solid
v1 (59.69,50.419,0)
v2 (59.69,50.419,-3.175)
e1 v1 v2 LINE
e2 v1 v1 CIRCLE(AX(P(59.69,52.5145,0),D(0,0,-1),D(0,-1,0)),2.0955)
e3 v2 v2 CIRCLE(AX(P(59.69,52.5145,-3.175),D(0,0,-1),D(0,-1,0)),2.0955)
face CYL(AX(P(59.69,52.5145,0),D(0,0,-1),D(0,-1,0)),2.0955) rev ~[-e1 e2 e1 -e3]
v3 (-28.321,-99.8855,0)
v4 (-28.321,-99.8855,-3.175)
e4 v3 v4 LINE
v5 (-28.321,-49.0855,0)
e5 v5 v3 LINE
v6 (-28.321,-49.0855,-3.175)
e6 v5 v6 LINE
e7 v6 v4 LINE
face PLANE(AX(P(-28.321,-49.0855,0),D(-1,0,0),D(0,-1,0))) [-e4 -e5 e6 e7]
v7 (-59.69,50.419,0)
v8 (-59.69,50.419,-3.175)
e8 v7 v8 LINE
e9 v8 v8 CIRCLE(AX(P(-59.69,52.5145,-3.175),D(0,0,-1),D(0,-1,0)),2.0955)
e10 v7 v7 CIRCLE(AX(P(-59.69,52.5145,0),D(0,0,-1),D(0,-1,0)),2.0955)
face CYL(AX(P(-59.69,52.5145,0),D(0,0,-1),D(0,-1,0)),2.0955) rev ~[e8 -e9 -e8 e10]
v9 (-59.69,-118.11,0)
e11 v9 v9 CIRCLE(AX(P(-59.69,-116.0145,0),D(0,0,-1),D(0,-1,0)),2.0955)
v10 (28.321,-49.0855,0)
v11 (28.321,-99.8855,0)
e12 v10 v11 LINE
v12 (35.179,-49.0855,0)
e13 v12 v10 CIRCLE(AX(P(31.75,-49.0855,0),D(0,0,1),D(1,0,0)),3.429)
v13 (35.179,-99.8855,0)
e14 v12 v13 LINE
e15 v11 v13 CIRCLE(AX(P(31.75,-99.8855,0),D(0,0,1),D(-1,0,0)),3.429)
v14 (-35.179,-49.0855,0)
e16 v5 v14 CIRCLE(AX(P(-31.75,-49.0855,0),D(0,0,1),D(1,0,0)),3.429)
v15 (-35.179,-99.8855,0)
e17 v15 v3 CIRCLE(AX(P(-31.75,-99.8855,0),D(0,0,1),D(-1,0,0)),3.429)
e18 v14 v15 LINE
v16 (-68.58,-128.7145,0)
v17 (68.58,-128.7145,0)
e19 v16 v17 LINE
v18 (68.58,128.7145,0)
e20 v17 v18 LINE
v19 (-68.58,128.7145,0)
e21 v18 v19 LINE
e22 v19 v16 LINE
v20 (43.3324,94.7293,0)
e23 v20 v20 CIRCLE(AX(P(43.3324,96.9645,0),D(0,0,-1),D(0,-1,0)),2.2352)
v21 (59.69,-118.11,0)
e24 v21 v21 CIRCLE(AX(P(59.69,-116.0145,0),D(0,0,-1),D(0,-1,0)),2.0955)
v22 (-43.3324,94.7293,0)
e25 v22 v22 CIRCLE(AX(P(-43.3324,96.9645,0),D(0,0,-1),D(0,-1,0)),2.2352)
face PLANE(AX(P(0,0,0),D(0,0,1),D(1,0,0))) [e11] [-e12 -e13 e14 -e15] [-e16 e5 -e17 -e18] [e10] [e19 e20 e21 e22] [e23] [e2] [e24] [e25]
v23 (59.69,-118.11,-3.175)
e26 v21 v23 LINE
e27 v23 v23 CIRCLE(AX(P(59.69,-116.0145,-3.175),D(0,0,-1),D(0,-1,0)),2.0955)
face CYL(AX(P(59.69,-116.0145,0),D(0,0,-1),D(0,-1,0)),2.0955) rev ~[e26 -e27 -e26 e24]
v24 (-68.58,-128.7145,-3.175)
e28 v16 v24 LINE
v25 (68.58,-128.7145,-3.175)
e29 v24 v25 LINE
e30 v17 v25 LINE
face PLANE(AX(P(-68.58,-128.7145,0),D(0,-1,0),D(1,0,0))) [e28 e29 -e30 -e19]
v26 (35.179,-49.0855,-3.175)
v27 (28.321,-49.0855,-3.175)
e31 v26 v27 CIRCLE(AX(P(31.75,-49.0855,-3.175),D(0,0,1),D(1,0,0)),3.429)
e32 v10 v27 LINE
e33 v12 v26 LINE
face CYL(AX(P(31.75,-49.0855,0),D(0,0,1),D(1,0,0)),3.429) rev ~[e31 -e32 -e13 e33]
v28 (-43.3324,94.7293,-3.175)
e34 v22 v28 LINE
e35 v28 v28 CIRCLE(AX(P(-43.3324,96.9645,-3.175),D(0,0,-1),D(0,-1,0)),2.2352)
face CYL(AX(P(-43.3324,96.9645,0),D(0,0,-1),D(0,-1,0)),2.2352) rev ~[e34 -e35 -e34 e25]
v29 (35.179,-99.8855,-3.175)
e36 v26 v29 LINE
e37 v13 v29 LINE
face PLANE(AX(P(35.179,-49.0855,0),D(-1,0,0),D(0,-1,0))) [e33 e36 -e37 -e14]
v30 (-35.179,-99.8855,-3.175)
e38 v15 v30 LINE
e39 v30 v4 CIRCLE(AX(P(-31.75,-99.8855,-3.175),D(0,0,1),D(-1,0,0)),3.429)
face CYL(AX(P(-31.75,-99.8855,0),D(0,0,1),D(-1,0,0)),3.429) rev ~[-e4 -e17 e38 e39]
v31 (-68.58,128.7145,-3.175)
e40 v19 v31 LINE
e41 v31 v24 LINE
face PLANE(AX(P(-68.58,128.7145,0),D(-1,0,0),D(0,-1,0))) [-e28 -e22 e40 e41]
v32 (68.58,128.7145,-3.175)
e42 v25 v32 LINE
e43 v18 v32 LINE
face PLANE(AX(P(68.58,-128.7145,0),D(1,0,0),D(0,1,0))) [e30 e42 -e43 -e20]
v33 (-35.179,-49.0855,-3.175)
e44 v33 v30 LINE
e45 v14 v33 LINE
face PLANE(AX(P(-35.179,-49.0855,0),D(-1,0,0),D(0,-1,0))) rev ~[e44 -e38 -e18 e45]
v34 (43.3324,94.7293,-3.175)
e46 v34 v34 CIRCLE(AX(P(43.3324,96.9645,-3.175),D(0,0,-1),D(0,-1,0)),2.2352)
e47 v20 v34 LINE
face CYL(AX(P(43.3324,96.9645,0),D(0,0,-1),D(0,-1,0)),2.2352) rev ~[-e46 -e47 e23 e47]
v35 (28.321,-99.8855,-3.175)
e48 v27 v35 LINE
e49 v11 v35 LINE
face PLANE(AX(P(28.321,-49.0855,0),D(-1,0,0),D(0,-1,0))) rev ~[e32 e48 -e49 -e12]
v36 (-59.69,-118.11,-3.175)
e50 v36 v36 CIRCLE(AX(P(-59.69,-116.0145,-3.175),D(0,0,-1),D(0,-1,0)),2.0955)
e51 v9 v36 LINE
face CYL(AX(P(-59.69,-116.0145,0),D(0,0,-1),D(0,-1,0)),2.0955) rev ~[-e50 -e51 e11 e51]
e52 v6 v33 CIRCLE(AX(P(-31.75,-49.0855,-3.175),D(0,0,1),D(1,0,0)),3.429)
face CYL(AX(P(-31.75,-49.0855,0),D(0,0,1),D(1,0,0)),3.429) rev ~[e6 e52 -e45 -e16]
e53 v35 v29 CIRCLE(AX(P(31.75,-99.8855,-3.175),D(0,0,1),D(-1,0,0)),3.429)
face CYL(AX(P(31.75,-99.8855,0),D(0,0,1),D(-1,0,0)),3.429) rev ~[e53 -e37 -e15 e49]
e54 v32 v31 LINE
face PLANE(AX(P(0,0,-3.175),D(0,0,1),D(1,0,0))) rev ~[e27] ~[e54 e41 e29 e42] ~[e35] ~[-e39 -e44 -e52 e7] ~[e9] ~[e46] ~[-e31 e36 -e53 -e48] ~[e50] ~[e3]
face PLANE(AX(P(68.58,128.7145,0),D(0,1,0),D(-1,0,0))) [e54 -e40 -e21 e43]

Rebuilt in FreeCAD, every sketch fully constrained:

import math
import FreeCAD as App
import Part
import Sketcher

V = App.Vector
Q = App.Units.Quantity


def add_polygon(sketch, points):
    """Adds a closed chain of lines whose ends are joined by coincident constraints."""
    first, n = sketch.GeometryCount, len(points)
    for a, b in zip(points, points[1:] + points[:1]):
        sketch.addGeometry(Part.LineSegment(App.Vector(*a, 0), App.Vector(*b, 0)), False)
    for i in range(n):
        sketch.addConstraint(Sketcher.Constraint("Coincident", first + i, 2, first + (i + 1) % n, 1))

doc = App.newDocument("Part")
body = doc.addObject("PartDesign::Body", "Body")

# Sketch on XY plane
sketch1 = body.newObject("Sketcher::SketchObject", "Sketch")
sketch1.AttachmentSupport = (doc.getObject("XY_Plane"), [""])
sketch1.MapMode = "FlatFace"
add_polygon(sketch1, [(-69, 129), (-69, -129), (69, -129), (69, 129)])  # lines 0-3
sketch1.addConstraint([
    Sketcher.Constraint("Vertical", 0),
    Sketcher.Constraint("Horizontal", 1),
    Sketcher.Constraint("Vertical", 2),
    Sketcher.Constraint("Horizontal", 3),
    Sketcher.Constraint("Symmetric", 0, 2, 2, 2, -1, 1),
    Sketcher.Constraint("DistanceX", 1, 1, 1, 2, Q("5.4 in")),
    Sketcher.Constraint("DistanceY", 0, 2, 0, 1, Q("10.135 in")),
])
pad1 = body.newObject("PartDesign::Pad", "Pad")
pad1.Profile = sketch1
pad1.Length = Q("0.125 in")
pad1.Reversed = True

# Sketch on XY plane
sketch2 = body.newObject("Sketcher::SketchObject", "Sketch001")
sketch2.AttachmentSupport = (doc.getObject("XY_Plane"), [""])
sketch2.MapMode = "FlatFace"
sketch2.addGeometry([
    Part.Circle(V(-59.7, 52.5, 0), V(0, 0, 1), 2.1),
    Part.Circle(V(59.7, 52.5, 0), V(0, 0, 1), 2.1),
    Part.Circle(V(-59.7, -116, 0), V(0, 0, 1), 2.1),
    Part.Circle(V(59.7, -116, 0), V(0, 0, 1), 2.1),
], False)
sketch2.addConstraint([
    Sketcher.Constraint("Equal", 0, 1),
    Sketcher.Constraint("Equal", 1, 2),
    Sketcher.Constraint("Equal", 2, 3),
    Sketcher.Constraint("Symmetric", 0, 3, 1, 3, -2),
    Sketcher.Constraint("Symmetric", 2, 3, 3, 3, -2),
    Sketcher.Constraint("Vertical", 0, 3, 2, 3),
    Sketcher.Constraint("Diameter", 0, Q("0.165 in")),
    Sketcher.Constraint("DistanceX", 0, 3, 1, 3, Q("4.7 in")),
    Sketcher.Constraint("DistanceY", 2, 3, 0, 3, Q("6.635 in")),
    Sketcher.Constraint("DistanceY", -1, 1, 0, 3, Q("2.0675 in")),
])
doc.recompute()
hole = body.newObject("PartDesign::Hole", "Hole")
hole.Profile = sketch2
hole.ThreadType = "None"
hole.Diameter = Q("0.165 in")
hole.DepthType = "ThroughAll"

# Sketch on XY plane
sketch3 = body.newObject("Sketcher::SketchObject", "Sketch002")
sketch3.AttachmentSupport = (doc.getObject("XY_Plane"), [""])
sketch3.MapMode = "FlatFace"
sketch3.addGeometry([
    Part.ArcOfCircle(Part.Circle(V(-31.8, -49.1, 0), V(0, 0, 1), 3.4), math.radians(0), math.radians(180)),  # 0
    Part.LineSegment(V(-35.2, -49.1, 0), V(-35.2, -99.9, 0)),  # 1
    Part.ArcOfCircle(Part.Circle(V(-31.8, -99.9, 0), V(0, 0, 1), 3.4), math.radians(180), math.radians(360)),  # 2
    Part.LineSegment(V(-28.3, -99.9, 0), V(-28.3, -49.1, 0)),  # 3
    Part.ArcOfCircle(Part.Circle(V(31.8, -49.1, 0), V(0, 0, 1), 3.4), math.radians(0), math.radians(180)),  # 4
    Part.LineSegment(V(28.3, -49.1, 0), V(28.3, -99.9, 0)),  # 5
    Part.ArcOfCircle(Part.Circle(V(31.8, -99.9, 0), V(0, 0, 1), 3.4), math.radians(180), math.radians(360)),  # 6
    Part.LineSegment(V(35.2, -99.9, 0), V(35.2, -49.1, 0)),  # 7
], False)
sketch3.addConstraint([
    Sketcher.Constraint("Tangent", 0, 2, 1, 1),
    Sketcher.Constraint("Tangent", 1, 2, 2, 1),
    Sketcher.Constraint("Tangent", 2, 2, 3, 1),
    Sketcher.Constraint("Tangent", 3, 2, 0, 1),
    Sketcher.Constraint("Tangent", 4, 2, 5, 1),
    Sketcher.Constraint("Tangent", 5, 2, 6, 1),
    Sketcher.Constraint("Tangent", 6, 2, 7, 1),
    Sketcher.Constraint("Tangent", 7, 2, 4, 1),
    Sketcher.Constraint("Vertical", 1),
    Sketcher.Constraint("Vertical", 3),
    Sketcher.Constraint("Vertical", 5),
    Sketcher.Constraint("Vertical", 7),
    Sketcher.Constraint("Equal", 2, 4),
    Sketcher.Constraint("Symmetric", 0, 3, 4, 3, -2),
    Sketcher.Constraint("Horizontal", 2, 3, 6, 3),
    Sketcher.Constraint("DistanceY", 1, 2, 1, 1, Q("2 in")),
    Sketcher.Constraint("Radius", 0, Q("0.135 in")),
    Sketcher.Constraint("DistanceX", 0, 3, 4, 3, Q("2.5 in")),
    Sketcher.Constraint("DistanceY", 0, 3, -1, 1, Q("1.9325 in")),
])
pocket1 = body.newObject("PartDesign::Pocket", "Pocket")
pocket1.Profile = sketch3
pocket1.Length = Q("0.125 in")

# Sketch on XY plane
sketch4 = body.newObject("Sketcher::SketchObject", "Sketch003")
sketch4.AttachmentSupport = (doc.getObject("XY_Plane"), [""])
sketch4.MapMode = "FlatFace"
sketch4.addGeometry([
    Part.Circle(V(-43.3, 97, 0), V(0, 0, 1), 2.2),
    Part.Circle(V(43.3, 97, 0), V(0, 0, 1), 2.2),
], False)
sketch4.addConstraint([
    Sketcher.Constraint("Equal", 0, 1),
    Sketcher.Constraint("Symmetric", 0, 3, 1, 3, -2),
    Sketcher.Constraint("Diameter", 0, Q("0.176 in")),
    Sketcher.Constraint("DistanceX", 0, 3, -1, 1, Q("1.706 in")),
    Sketcher.Constraint("DistanceY", -1, 1, 0, 3, Q("3.8175 in")),
])
doc.recompute()
hole2 = body.newObject("PartDesign::Hole", "Hole001")
hole2.Profile = sketch4
hole2.ThreadType = "None"
hole2.Diameter = Q("0.176 in")
hole2.DepthType = "ThroughAll"

doc.recompute()
